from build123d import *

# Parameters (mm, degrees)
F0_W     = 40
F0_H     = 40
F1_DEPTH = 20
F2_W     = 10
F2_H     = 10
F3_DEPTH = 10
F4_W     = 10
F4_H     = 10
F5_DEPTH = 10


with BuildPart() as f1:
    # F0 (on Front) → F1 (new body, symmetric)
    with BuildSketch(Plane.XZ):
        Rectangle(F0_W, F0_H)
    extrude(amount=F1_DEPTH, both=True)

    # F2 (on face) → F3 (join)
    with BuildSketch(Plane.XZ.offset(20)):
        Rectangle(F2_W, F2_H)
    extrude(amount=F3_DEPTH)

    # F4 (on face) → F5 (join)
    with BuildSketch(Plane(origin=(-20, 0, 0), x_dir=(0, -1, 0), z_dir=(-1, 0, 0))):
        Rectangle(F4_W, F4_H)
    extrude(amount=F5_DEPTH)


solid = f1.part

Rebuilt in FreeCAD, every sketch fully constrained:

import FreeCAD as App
import Part
import Sketcher
from FreeCAD import Vector
Q = App.Units.Quantity

doc = App.newDocument("Part")
body = doc.addObject("PartDesign::Body", "Body")

# Sketch on XZ plane
sketch1 = doc.addObject("Sketcher::SketchObject", "Sketch")
body.addObject(sketch1)
sketch1.AttachmentSupport = (doc.XZ_Plane, [""])
sketch1.MapMode = "FlatFace"
sketch1.addGeometry([
    Part.LineSegment(Vector(-20, 20, 0), Vector(-20, -20, 0)),
    Part.LineSegment(Vector(-20, -20, 0), Vector(20, -20, 0)),
    Part.LineSegment(Vector(20, -20, 0), Vector(20, 20, 0)),
    Part.LineSegment(Vector(20, 20, 0), Vector(-20, 20, 0)),
], False)
sketch1.addConstraint([
    Sketcher.Constraint("Coincident", 0, 2, 1, 1),
    Sketcher.Constraint("Coincident", 1, 2, 2, 1),
    Sketcher.Constraint("Coincident", 2, 2, 3, 1),
    Sketcher.Constraint("Coincident", 3, 2, 0, 1),
    Sketcher.Constraint("Vertical", 0),
    Sketcher.Constraint("Horizontal", 1),
    Sketcher.Constraint("Vertical", 2),
    Sketcher.Constraint("Horizontal", 3),
    Sketcher.Constraint("Symmetric", 0, 2, 2, 2, -1, 1),
    Sketcher.Constraint("Equal", 3, 0),
    Sketcher.Constraint("DistanceX", 1, 1, 1, 2, Q("40 mm")),
])
pad1 = doc.addObject("PartDesign::Pad", "Pad")
body.addObject(pad1)
pad1.Profile = sketch1
pad1.Length = 40
pad1.Midplane = True

# Sketch on XZ plane
sketch2 = doc.addObject("Sketcher::SketchObject", "Sketch001")
body.addObject(sketch2)
sketch2.AttachmentSupport = (doc.XZ_Plane, [""])
sketch2.MapMode = "FlatFace"
sketch2.AttachmentOffset = App.Placement(Vector(0, 0, 20), App.Rotation())
sketch2.addGeometry([
    Part.LineSegment(Vector(-5, 5, 0), Vector(-5, -5, 0)),
    Part.LineSegment(Vector(-5, -5, 0), Vector(5, -5, 0)),
    Part.LineSegment(Vector(5, -5, 0), Vector(5, 5, 0)),
    Part.LineSegment(Vector(5, 5, 0), Vector(-5, 5, 0)),
], False)
sketch2.addConstraint([
    Sketcher.Constraint("Coincident", 0, 2, 1, 1),
    Sketcher.Constraint("Coincident", 1, 2, 2, 1),
    Sketcher.Constraint("Coincident", 2, 2, 3, 1),
    Sketcher.Constraint("Coincident", 3, 2, 0, 1),
    Sketcher.Constraint("Vertical", 0),
    Sketcher.Constraint("Horizontal", 1),
    Sketcher.Constraint("Vertical", 2),
    Sketcher.Constraint("Horizontal", 3),
    Sketcher.Constraint("Symmetric", 0, 2, 2, 2, -1, 1),
    Sketcher.Constraint("Equal", 3, 0),
    Sketcher.Constraint("DistanceX", 1, 1, 1, 2, Q("10 mm")),
])
pad2 = doc.addObject("PartDesign::Pad", "Pad001")
body.addObject(pad2)
pad2.Profile = sketch2
pad2.Length = 10

# Sketch on YZ plane
sketch3 = doc.addObject("Sketcher::SketchObject", "Sketch002")
body.addObject(sketch3)
sketch3.AttachmentSupport = (doc.YZ_Plane, [""])
sketch3.MapMode = "FlatFace"
sketch3.AttachmentOffset = App.Placement(Vector(0, 0, -20), App.Rotation())
sketch3.addGeometry([
    Part.LineSegment(Vector(5, 5, 0), Vector(5, -5, 0)),
    Part.LineSegment(Vector(5, -5, 0), Vector(-5, -5, 0)),
    Part.LineSegment(Vector(-5, -5, 0), Vector(-5, 5, 0)),
    Part.LineSegment(Vector(-5, 5, 0), Vector(5, 5, 0)),
], False)
sketch3.addConstraint([
    Sketcher.Constraint("Coincident", 0, 2, 1, 1),
    Sketcher.Constraint("Coincident", 1, 2, 2, 1),
    Sketcher.Constraint("Coincident", 2, 2, 3, 1),
    Sketcher.Constraint("Coincident", 3, 2, 0, 1),
    Sketcher.Constraint("Vertical", 0),
    Sketcher.Constraint("Horizontal", 1),
    Sketcher.Constraint("Vertical", 2),
    Sketcher.Constraint("Horizontal", 3),
    Sketcher.Constraint("Symmetric", 0, 2, 2, 2, -1, 1),
    Sketcher.Constraint("Equal", 3, 0),
    Sketcher.Constraint("DistanceX", 1, 2, 1, 1, Q("10 mm")),
])
pad3 = doc.addObject("PartDesign::Pad", "Pad002")
body.addObject(pad3)
pad3.Profile = sketch3
pad3.Length = 10
pad3.Reversed = True

doc.recompute()
